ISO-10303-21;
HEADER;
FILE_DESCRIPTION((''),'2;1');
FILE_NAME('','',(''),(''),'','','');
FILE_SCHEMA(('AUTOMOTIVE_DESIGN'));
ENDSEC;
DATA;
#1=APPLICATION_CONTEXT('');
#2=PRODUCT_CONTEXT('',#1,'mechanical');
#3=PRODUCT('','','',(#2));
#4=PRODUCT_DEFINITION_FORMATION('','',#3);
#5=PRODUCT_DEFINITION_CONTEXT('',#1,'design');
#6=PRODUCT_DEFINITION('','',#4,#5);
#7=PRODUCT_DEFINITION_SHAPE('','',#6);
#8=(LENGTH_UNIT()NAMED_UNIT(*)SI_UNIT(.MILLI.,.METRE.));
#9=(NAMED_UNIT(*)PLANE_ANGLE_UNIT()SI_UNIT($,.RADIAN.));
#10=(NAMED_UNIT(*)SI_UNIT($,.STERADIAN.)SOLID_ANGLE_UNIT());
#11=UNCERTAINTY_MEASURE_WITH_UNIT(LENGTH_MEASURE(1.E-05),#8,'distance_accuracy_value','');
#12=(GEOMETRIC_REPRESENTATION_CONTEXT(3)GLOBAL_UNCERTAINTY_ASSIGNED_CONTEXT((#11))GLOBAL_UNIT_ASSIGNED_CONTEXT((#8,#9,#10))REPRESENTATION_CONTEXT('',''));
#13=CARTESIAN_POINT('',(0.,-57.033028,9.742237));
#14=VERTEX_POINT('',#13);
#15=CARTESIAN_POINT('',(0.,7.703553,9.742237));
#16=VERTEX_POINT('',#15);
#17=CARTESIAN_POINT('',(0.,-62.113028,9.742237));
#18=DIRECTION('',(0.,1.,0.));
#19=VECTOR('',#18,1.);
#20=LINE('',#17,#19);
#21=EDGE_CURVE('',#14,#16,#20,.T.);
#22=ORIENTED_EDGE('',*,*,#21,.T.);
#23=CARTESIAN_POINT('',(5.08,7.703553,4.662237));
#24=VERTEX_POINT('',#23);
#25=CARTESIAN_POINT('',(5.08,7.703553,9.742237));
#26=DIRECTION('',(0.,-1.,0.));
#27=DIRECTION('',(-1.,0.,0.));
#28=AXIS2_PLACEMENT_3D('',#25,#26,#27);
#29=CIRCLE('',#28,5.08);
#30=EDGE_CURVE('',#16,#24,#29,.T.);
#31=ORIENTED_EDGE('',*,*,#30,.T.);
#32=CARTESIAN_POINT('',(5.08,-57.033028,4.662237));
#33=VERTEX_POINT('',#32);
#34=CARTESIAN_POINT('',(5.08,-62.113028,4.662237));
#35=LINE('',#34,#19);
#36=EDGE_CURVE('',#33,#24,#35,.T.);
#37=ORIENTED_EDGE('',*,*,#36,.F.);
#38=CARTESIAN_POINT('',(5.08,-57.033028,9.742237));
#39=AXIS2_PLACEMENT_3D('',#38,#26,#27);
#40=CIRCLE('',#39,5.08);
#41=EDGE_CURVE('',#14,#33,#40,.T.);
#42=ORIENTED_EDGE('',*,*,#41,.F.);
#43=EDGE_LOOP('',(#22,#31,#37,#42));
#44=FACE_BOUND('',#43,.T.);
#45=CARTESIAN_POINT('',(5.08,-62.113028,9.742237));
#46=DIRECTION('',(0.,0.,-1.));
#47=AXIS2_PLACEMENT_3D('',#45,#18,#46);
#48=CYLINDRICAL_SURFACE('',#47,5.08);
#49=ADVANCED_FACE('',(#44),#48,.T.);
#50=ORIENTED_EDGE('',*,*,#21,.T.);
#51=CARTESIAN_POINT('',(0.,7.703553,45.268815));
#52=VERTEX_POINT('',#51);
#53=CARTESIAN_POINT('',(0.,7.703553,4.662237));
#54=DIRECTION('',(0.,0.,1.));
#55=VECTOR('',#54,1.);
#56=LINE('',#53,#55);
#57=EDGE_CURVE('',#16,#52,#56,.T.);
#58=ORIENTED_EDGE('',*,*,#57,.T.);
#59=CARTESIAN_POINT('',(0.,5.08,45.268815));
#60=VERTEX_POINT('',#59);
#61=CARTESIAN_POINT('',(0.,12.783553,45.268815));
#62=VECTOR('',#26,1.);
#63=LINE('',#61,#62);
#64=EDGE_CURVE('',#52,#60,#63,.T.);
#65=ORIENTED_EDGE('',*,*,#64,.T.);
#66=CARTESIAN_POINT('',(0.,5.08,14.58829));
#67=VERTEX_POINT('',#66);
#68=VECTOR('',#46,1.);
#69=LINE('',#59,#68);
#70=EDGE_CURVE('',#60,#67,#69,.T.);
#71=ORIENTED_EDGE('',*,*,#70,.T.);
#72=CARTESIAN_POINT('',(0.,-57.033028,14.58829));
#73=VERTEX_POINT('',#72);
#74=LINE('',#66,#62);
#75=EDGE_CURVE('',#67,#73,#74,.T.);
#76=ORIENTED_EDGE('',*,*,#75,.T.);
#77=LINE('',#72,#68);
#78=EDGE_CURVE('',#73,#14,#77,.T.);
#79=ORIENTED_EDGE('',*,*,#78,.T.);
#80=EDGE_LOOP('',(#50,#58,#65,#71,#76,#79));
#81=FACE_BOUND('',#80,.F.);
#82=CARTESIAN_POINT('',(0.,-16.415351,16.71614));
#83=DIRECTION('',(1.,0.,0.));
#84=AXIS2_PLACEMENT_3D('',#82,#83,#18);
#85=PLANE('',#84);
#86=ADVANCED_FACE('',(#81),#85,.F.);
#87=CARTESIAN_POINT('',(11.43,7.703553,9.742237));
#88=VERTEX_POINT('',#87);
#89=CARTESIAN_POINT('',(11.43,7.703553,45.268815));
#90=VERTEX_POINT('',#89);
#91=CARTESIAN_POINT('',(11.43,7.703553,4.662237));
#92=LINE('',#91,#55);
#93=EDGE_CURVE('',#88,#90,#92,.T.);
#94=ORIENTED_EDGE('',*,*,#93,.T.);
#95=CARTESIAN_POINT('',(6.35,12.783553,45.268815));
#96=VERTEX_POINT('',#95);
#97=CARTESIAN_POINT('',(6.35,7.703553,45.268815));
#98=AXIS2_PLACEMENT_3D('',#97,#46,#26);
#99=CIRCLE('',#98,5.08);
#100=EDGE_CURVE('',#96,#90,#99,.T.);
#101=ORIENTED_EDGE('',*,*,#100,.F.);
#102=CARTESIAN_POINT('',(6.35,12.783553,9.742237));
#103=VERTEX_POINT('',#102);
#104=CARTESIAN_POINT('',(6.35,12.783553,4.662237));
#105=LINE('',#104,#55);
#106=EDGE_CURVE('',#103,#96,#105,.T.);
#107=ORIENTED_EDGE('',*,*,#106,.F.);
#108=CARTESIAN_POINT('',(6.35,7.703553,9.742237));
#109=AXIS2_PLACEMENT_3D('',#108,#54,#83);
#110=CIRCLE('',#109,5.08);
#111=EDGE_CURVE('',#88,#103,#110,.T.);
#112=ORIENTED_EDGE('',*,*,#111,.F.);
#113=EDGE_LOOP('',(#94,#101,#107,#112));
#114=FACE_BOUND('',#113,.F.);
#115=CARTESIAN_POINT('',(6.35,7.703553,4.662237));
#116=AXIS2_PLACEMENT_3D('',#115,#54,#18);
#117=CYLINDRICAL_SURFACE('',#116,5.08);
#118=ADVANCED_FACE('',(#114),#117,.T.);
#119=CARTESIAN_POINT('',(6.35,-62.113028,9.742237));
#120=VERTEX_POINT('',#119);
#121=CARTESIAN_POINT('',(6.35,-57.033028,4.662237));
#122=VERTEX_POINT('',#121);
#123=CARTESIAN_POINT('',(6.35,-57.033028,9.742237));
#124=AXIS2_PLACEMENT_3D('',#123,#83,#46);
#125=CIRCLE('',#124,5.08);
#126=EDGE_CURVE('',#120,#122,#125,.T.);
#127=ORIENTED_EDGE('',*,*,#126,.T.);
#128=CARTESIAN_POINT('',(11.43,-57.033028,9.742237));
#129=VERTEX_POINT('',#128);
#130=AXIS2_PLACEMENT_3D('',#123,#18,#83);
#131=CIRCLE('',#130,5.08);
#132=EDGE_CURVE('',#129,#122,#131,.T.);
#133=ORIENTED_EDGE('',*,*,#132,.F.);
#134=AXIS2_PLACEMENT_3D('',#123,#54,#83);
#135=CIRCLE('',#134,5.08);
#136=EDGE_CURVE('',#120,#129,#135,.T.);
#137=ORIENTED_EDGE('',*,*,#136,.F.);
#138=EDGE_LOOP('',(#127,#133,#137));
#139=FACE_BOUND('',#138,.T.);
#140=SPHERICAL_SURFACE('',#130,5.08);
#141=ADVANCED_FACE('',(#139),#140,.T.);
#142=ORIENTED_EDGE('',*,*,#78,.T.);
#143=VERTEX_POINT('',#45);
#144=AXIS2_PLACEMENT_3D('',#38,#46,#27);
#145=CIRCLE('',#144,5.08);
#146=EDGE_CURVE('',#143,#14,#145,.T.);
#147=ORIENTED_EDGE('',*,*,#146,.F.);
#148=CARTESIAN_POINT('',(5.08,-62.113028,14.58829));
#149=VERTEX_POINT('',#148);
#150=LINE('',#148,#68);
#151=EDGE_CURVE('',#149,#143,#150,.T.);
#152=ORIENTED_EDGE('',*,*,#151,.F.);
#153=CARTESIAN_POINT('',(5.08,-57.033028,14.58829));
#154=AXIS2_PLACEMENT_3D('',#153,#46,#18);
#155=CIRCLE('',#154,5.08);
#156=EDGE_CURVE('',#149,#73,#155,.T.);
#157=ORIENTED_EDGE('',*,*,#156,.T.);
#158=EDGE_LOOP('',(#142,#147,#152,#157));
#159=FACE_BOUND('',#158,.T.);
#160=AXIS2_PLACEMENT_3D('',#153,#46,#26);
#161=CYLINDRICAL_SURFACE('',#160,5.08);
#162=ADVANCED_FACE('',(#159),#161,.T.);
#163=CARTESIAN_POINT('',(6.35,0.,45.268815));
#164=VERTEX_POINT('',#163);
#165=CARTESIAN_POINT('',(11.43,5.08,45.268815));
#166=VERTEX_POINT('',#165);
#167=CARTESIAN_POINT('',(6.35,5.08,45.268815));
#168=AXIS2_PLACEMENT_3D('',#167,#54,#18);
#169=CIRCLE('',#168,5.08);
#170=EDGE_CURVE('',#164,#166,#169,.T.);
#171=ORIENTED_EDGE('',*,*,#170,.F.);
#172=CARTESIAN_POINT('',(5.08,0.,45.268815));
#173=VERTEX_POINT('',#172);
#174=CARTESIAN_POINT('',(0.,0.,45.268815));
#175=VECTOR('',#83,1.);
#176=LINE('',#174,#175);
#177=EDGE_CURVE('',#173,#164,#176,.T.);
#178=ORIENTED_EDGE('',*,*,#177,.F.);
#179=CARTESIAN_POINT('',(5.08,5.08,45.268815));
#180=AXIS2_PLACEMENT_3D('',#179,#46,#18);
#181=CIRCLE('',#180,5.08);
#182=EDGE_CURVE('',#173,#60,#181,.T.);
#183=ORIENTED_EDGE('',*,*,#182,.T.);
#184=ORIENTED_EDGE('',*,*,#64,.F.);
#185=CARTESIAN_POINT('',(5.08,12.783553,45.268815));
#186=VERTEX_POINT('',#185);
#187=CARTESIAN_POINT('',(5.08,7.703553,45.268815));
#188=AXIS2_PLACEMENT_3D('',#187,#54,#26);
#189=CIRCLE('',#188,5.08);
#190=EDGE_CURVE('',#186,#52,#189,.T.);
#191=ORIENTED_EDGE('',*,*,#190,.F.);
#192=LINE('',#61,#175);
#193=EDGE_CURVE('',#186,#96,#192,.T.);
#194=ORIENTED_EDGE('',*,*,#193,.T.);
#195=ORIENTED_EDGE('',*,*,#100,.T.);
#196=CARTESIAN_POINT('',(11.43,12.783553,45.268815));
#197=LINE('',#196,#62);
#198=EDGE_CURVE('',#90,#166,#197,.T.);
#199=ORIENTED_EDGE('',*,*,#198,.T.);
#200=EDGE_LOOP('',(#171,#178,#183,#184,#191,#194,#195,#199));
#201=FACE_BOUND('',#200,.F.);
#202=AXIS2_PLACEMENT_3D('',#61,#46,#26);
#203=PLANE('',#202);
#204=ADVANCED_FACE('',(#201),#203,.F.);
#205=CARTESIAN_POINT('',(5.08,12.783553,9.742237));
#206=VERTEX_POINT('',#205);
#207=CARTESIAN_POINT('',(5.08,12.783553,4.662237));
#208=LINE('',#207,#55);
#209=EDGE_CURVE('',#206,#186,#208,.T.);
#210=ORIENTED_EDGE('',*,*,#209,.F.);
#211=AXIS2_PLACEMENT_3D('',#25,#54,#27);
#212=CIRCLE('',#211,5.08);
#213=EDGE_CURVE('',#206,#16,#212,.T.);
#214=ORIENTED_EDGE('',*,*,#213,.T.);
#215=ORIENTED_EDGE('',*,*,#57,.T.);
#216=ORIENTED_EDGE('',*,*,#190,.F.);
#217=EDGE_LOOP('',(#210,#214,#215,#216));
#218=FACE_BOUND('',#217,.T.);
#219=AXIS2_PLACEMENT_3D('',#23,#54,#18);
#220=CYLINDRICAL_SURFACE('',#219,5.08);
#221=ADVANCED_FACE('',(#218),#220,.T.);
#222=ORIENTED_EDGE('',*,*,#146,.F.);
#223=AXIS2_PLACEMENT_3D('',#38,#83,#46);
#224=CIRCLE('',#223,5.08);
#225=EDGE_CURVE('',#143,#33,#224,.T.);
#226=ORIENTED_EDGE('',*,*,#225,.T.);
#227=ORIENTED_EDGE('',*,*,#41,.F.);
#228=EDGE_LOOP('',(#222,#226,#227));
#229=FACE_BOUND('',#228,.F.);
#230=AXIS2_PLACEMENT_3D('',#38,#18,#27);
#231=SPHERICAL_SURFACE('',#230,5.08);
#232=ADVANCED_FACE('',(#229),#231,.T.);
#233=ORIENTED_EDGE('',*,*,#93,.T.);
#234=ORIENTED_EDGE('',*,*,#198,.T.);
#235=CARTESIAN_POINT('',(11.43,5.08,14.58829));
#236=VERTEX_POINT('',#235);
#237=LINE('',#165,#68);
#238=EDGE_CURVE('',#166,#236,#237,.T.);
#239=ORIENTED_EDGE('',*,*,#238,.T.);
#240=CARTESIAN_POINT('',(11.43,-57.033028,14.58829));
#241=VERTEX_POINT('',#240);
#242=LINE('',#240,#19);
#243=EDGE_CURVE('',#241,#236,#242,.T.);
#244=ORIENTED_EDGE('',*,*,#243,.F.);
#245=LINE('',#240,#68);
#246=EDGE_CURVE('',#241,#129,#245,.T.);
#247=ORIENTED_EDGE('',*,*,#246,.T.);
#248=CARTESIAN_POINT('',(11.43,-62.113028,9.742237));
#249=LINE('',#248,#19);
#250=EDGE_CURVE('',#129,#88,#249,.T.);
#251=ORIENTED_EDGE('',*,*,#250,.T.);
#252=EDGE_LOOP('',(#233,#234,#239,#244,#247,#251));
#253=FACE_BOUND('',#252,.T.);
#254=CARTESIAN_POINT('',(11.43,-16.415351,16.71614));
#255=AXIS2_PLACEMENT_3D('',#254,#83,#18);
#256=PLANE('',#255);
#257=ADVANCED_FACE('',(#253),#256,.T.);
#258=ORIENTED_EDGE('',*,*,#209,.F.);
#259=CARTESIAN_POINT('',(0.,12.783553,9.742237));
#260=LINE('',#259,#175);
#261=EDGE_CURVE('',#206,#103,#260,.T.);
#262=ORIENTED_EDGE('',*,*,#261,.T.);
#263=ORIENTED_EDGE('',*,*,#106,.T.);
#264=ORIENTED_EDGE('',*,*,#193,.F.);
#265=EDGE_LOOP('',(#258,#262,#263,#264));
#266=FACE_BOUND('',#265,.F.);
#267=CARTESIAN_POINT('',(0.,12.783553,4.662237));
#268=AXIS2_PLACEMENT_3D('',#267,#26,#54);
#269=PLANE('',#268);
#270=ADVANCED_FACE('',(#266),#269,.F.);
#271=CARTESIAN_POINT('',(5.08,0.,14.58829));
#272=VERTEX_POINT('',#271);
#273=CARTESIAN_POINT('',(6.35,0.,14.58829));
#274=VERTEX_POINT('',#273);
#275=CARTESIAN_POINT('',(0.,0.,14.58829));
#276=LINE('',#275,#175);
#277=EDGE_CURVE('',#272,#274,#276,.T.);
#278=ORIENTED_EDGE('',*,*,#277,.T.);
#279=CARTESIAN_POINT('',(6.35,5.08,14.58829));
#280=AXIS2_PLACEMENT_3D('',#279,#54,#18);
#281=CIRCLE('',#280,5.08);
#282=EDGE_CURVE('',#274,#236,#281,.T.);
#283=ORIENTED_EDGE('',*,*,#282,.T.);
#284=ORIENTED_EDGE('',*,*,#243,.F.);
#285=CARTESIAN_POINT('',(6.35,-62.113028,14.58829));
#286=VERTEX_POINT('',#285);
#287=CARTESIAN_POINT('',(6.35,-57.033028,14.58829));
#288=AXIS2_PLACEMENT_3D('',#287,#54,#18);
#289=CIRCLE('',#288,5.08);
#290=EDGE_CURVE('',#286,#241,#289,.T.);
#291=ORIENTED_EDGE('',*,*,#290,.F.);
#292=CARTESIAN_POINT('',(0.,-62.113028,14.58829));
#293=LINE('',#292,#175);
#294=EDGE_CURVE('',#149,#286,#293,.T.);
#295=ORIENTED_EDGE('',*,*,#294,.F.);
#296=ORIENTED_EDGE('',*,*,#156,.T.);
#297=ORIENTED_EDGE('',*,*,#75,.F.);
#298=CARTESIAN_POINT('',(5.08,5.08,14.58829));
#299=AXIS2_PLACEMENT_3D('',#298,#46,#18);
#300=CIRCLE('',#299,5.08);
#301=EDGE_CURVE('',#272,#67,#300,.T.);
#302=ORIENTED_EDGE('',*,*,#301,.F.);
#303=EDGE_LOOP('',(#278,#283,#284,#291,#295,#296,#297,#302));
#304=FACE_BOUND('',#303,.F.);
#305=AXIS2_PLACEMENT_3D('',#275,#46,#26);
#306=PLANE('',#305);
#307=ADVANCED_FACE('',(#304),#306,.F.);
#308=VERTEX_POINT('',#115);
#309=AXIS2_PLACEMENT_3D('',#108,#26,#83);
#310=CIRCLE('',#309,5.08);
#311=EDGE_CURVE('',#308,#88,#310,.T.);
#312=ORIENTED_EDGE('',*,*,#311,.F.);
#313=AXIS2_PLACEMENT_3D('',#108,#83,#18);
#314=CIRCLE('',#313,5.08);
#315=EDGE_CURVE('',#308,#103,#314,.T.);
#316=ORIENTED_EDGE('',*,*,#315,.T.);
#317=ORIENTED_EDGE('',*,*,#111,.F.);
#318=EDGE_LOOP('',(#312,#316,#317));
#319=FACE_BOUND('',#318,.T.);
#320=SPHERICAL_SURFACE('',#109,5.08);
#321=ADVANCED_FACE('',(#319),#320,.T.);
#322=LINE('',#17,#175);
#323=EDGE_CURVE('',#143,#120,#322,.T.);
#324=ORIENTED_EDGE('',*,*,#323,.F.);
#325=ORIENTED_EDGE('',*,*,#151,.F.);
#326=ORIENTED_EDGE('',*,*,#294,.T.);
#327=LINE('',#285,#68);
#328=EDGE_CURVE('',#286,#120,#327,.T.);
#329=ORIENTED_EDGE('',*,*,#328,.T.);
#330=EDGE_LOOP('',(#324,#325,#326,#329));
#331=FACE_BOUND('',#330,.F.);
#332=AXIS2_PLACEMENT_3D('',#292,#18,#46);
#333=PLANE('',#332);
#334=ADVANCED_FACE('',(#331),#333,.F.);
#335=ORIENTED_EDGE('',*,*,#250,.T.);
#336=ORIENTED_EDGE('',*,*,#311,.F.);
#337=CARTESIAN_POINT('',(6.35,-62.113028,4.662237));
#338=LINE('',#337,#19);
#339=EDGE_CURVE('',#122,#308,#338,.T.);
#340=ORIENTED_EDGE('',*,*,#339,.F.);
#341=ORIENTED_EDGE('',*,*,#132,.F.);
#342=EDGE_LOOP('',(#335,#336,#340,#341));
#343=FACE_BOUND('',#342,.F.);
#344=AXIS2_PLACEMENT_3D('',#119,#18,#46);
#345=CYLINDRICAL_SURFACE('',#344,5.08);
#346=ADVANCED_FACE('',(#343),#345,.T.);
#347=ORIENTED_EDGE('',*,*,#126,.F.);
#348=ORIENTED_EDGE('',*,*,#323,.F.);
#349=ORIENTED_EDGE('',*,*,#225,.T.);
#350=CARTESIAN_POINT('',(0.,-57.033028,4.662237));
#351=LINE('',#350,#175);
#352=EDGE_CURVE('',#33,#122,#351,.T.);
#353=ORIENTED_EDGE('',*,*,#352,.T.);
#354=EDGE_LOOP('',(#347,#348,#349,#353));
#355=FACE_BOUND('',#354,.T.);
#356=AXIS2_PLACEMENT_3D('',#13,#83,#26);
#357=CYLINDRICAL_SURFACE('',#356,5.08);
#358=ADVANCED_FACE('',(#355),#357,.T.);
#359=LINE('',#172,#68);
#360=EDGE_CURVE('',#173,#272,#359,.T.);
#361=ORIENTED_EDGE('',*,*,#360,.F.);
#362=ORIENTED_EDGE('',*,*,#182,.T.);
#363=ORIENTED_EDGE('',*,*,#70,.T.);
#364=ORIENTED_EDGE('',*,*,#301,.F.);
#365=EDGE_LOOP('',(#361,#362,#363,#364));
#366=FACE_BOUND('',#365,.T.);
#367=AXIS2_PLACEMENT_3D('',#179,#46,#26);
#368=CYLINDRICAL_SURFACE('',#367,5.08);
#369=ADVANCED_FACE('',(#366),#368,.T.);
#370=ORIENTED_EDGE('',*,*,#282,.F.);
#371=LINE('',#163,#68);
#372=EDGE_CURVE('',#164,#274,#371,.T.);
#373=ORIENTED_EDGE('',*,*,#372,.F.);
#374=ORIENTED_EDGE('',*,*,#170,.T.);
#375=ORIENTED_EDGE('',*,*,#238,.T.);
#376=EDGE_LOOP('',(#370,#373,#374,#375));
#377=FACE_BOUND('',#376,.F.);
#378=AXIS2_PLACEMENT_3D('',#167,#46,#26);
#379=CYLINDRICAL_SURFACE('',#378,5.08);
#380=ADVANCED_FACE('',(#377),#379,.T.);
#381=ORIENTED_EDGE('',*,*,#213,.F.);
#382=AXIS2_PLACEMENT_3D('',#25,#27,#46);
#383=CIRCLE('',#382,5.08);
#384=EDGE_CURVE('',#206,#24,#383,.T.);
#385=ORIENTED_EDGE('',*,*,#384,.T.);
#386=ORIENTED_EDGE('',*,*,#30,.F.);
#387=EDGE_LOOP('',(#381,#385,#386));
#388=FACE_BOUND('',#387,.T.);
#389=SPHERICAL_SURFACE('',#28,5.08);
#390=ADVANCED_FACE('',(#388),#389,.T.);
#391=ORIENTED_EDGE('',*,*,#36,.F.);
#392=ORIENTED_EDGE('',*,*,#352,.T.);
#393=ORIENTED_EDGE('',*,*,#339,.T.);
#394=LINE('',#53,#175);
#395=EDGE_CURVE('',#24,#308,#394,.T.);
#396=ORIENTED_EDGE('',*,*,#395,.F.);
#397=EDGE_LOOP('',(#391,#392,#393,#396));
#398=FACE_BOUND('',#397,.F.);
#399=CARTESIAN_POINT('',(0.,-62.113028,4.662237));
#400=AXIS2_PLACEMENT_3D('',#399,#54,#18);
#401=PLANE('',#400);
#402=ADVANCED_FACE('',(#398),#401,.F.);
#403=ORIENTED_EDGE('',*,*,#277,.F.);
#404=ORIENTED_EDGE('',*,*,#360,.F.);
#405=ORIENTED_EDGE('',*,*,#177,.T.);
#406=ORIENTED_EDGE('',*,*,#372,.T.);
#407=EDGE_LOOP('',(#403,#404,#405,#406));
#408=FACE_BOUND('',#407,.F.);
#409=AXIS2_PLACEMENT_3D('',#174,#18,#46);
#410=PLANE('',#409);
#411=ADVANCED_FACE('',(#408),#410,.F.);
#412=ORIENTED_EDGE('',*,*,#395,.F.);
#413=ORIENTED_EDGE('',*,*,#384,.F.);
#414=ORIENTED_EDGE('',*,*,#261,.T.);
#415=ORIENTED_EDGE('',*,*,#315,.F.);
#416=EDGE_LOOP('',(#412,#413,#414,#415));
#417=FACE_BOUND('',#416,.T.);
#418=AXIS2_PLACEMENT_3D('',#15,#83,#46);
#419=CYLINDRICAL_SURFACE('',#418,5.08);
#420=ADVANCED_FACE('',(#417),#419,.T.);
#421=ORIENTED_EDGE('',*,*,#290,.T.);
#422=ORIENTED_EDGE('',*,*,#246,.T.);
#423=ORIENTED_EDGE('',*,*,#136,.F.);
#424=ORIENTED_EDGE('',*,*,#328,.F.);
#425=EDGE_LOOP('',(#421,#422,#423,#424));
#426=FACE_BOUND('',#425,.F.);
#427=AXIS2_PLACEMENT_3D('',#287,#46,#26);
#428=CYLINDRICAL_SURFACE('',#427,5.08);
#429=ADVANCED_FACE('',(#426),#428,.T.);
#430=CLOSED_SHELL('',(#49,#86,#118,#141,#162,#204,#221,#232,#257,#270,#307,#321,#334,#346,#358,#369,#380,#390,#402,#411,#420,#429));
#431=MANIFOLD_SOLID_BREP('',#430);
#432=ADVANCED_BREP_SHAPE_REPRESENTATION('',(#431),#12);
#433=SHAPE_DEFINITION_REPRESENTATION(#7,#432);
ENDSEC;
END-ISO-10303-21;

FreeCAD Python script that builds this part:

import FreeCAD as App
import Part
import Sketcher
from FreeCAD import Vector
Q = App.Units.Quantity


def edges_at(feature, points):
    """Names of the edges that pass closest to the given points."""
    edges = feature.Shape.Edges
    near = lambda p: min(range(len(edges)), key=lambda i: edges[i].distToShape(Part.Vertex(*p))[0])
    return sorted({f"Edge{near(p) + 1}" for p in points})

doc = App.newDocument("Part")
body = doc.addObject("PartDesign::Body", "Body")

# Sketch on YZ plane
sketch1 = body.newObject("Sketcher::SketchObject", "Sketch")
sketch1.AttachmentSupport = (doc.getObject("YZ_Plane"), [""])
sketch1.MapMode = "FlatFace"
sketch1.addGeometry([
    Part.LineSegment(Vector(0, 15, 0), Vector(-62, 15, 0)),  # 0
    Part.LineSegment(Vector(-62, 15, 0), Vector(-62, 5, 0)),  # 1
    Part.LineSegment(Vector(-62, 5, 0), Vector(13, 5, 0)),  # 2
    Part.LineSegment(Vector(13, 5, 0), Vector(13, 45, 0)),  # 3
    Part.LineSegment(Vector(13, 45, 0), Vector(0, 45, 0)),  # 4
    Part.LineSegment(Vector(0, 45, 0), Vector(0, 15, 0)),  # 5
], False)
sketch1.addConstraint([
    Sketcher.Constraint("Coincident", 0, 2, 1, 1),
    Sketcher.Constraint("Coincident", 1, 2, 2, 1),
    Sketcher.Constraint("Coincident", 2, 2, 3, 1),
    Sketcher.Constraint("Coincident", 3, 2, 4, 1),
    Sketcher.Constraint("Coincident", 4, 2, 5, 1),
    Sketcher.Constraint("Coincident", 5, 2, 0, 1),
    Sketcher.Constraint("Horizontal", 0),
    Sketcher.Constraint("Vertical", 1),
    Sketcher.Constraint("Horizontal", 2),
    Sketcher.Constraint("Vertical", 3),
    Sketcher.Constraint("Horizontal", 4),
    Sketcher.Constraint("Vertical", 5),
    Sketcher.Constraint("PointOnObject", 4, 2, -2),
    Sketcher.Constraint("DistanceX", 2, 1, 2, 2, Q("74.896581 mm")),
    Sketcher.Constraint("DistanceX", 0, 2, 0, 1, Q("62.113028 mm")),
    Sketcher.Constraint("DistanceY", 1, 2, 1, 1, Q("9.926053 mm")),
    Sketcher.Constraint("DistanceY", 3, 1, 3, 2, Q("40.606578 mm")),
    Sketcher.Constraint("DistanceY", -1, 1, 0, 2, Q("14.58829 mm")),
])
pad1 = body.newObject("PartDesign::Pad", "Pad")
pad1.Profile = sketch1
pad1.Length = Q("0.45 in")
doc.recompute()

fillet = body.newObject("PartDesign::Fillet", "Fillet")
fillet.Base = (pad1, edges_at(pad1, [
    (11.43, 0, 29.929),
    (0, 0, 29.929),
    (11.43, 12.784, 24.966),
    (11.43, -24.665, 4.662),
    (0, -24.665, 4.662),
    (0, 12.784, 24.966),
    (0, -62.113, 9.625),
    (11.43, -62.113, 9.625),
    (5.715, -62.113, 4.662),
    (5.715, 12.784, 4.662),
]))
fillet.Radius = Q("0.2 in")

doc.recompute()
